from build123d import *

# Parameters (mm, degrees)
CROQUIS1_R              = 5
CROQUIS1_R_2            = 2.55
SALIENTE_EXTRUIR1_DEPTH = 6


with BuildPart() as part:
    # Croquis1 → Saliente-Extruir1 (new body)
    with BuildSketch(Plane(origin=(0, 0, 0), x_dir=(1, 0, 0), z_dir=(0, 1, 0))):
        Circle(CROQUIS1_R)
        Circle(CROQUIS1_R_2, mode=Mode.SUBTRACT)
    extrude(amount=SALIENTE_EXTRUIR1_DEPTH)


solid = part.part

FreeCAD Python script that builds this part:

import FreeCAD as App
import Part
import Sketcher

V = App.Vector

doc = App.newDocument("Part")
body = doc.addObject("PartDesign::Body", "Body")

sketch1 = doc.addObject("Sketcher::SketchObject", "Sketch")
body.addObject(sketch1)
sketch1.AttachmentSupport = (doc.XZ_Plane, [""])
sketch1.MapMode = "FlatFace"
sketch1.addGeometry([
    Part.Circle(V(0, 0, 0), V(0, 0, 1), 5),
    Part.Circle(V(0, 0, 0), V(0, 0, 1), 2.55),
], False)
sketch1.addConstraint([
    Sketcher.Constraint("Coincident", 0, 3, -1, 1),
    Sketcher.Constraint("Coincident", 1, 3, -1, 1),
    Sketcher.Constraint("Diameter", 0, 10.0),
    Sketcher.Constraint("Diameter", 1, 5.1),
])
pad1 = doc.addObject("PartDesign::Pad", "Pad")
body.addObject(pad1)
pad1.Profile = sketch1
pad1.Length = 6
pad1.Reversed = True

doc.recompute()
